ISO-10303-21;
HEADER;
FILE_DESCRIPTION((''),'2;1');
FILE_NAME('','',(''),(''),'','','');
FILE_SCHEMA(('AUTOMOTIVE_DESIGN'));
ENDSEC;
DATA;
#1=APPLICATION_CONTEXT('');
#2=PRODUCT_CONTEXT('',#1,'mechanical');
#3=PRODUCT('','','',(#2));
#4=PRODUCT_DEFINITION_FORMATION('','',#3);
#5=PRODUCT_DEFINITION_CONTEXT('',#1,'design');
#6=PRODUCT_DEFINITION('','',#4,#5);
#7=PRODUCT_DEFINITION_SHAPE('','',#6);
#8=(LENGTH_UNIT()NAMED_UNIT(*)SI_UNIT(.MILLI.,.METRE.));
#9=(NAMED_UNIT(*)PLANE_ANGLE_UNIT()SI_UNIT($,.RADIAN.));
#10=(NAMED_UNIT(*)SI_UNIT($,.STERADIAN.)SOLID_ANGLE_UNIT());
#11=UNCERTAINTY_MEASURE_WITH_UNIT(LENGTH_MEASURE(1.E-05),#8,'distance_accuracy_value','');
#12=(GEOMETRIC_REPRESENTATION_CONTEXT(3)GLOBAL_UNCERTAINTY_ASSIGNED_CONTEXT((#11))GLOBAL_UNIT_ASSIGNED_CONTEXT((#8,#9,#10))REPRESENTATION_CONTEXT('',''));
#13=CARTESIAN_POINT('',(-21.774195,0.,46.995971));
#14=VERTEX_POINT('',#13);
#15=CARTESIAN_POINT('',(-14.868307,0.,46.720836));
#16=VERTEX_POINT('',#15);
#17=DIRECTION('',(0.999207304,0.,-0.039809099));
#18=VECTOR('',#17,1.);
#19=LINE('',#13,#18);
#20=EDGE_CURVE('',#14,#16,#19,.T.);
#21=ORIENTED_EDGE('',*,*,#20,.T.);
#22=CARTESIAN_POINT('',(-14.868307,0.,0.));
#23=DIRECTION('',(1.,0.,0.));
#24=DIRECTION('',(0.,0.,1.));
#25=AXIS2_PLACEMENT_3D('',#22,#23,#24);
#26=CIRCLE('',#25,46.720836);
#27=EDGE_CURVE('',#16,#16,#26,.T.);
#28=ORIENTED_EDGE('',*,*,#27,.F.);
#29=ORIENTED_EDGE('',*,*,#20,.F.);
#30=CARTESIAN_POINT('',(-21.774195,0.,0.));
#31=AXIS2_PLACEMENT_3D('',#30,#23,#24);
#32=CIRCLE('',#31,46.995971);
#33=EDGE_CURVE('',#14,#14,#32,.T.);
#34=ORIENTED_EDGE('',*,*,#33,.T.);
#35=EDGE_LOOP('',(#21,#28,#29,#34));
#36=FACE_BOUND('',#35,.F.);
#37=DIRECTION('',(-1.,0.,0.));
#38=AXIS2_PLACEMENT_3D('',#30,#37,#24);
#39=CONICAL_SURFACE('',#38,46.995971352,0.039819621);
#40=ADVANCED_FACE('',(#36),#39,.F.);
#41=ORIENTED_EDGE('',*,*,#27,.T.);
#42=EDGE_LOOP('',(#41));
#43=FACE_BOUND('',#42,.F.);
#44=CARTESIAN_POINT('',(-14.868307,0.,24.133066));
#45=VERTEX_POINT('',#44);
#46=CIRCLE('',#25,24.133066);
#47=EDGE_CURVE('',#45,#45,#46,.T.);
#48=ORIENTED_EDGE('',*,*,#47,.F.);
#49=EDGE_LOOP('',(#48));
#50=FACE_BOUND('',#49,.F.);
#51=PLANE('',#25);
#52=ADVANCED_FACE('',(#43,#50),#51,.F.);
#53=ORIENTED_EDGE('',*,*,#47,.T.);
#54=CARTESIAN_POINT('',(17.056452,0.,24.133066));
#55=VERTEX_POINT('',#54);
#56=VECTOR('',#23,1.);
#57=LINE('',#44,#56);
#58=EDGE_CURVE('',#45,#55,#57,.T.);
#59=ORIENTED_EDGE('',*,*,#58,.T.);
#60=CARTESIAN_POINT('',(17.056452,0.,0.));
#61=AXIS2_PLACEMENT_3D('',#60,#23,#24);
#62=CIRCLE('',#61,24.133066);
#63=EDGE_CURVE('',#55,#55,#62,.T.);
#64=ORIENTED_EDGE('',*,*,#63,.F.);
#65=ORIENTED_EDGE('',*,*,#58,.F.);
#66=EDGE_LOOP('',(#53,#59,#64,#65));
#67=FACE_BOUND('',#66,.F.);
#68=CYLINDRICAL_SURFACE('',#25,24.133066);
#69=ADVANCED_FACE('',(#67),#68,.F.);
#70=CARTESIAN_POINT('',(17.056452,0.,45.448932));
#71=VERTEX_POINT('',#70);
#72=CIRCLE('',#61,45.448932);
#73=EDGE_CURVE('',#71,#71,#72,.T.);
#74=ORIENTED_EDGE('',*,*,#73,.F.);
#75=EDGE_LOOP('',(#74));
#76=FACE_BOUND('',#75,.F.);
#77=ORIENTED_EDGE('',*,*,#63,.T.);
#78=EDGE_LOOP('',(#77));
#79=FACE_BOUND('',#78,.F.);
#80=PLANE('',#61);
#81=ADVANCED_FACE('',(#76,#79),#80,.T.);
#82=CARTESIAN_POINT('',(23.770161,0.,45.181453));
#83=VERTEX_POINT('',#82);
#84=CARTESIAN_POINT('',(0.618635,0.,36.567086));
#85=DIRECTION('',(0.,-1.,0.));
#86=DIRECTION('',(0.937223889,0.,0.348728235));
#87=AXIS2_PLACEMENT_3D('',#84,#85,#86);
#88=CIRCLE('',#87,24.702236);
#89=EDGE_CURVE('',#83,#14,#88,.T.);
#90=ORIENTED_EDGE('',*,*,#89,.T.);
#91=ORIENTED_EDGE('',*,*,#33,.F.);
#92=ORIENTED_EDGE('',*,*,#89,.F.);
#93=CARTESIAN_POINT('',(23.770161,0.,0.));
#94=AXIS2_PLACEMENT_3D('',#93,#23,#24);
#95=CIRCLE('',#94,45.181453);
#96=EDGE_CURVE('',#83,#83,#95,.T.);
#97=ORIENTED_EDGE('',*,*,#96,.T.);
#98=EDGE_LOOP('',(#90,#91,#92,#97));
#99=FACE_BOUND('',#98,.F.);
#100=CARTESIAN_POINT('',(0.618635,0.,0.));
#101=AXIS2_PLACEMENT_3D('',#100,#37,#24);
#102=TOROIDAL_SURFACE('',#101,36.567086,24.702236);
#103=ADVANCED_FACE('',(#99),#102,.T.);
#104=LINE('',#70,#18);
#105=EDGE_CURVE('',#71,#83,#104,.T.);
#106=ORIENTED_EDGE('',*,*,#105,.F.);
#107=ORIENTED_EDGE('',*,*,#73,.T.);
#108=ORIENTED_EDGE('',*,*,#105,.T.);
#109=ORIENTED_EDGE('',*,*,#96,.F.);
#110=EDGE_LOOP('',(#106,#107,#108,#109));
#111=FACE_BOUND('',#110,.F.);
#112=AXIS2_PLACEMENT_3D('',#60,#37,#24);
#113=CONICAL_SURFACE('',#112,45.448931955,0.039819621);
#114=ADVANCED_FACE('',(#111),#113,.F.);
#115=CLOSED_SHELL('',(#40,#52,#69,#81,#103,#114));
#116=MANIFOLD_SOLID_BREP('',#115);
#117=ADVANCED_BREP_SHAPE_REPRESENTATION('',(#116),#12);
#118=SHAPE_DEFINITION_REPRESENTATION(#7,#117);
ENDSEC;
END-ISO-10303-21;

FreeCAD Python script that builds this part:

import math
import FreeCAD as App
import Part
import Sketcher

doc = App.newDocument("Part")
body = doc.addObject("PartDesign::Body", "Body")

sketch1 = doc.addObject("Sketcher::SketchObject", "Sketch")
body.addObject(sketch1)
sketch1.AttachmentSupport = (doc.XZ_Plane, [""])
sketch1.MapMode = "FlatFace"
sketch1.addGeometry(Part.LineSegment(App.Vector(17, 45, 0), App.Vector(24, 45, 0)), False)
sketch1.addGeometry(Part.ArcOfCircle(Part.Circle(App.Vector(1, 37, 0), App.Vector(0, 0, 1), 25), math.radians(20), math.radians(155)), False)
sketch1.addGeometry(Part.LineSegment(App.Vector(-22, 47, 0), App.Vector(-15, 47, 0)), False)
sketch1.addGeometry(Part.LineSegment(App.Vector(-15, 47, 0), App.Vector(-15, 24, 0)), False)
sketch1.addGeometry(Part.LineSegment(App.Vector(-15, 24, 0), App.Vector(17, 24, 0)), False)
sketch1.addGeometry(Part.LineSegment(App.Vector(17, 24, 0), App.Vector(17, 45, 0)), False)
sketch1.addConstraint(Sketcher.Constraint("Coincident", 0, 2, 1, 1))
sketch1.addConstraint(Sketcher.Constraint("Coincident", 1, 2, 2, 1))
sketch1.addConstraint(Sketcher.Constraint("Coincident", 2, 2, 3, 1))
sketch1.addConstraint(Sketcher.Constraint("Coincident", 3, 2, 4, 1))
sketch1.addConstraint(Sketcher.Constraint("Coincident", 4, 2, 5, 1))
sketch1.addConstraint(Sketcher.Constraint("Coincident", 5, 2, 0, 1))
sketch1.addConstraint(Sketcher.Constraint("Vertical", 3))
sketch1.addConstraint(Sketcher.Constraint("Horizontal", 4))
sketch1.addConstraint(Sketcher.Constraint("Vertical", 5))
sketch1.addConstraint(Sketcher.Constraint("Parallel", 0, 2))
sketch1.addConstraint(Sketcher.Constraint("Radius", 1, 24.702236))
sketch1.addConstraint(Sketcher.Constraint("DistanceX", 4, 1, 4, 2, 31.924759))
sketch1.addConstraint(Sketcher.Constraint("DistanceY", 3, 2, 3, 1, 22.58777))
sketch1.addConstraint(Sketcher.Constraint("DistanceY", 5, 1, 5, 2, 21.315866))
sketch1.addConstraint(Sketcher.Constraint("DistanceX", -1, 1, 0, 2, 23.770161))
sketch1.addConstraint(Sketcher.Constraint("DistanceY", -1, 1, 1, 2, 46.995971))
sketch1.addConstraint(Sketcher.Constraint("DistanceY", -1, 1, 5, 2, 45.448932))
sketch1.addConstraint(Sketcher.Constraint("DistanceX", 1, 2, 1, 3, 22.39283))
sketch1.addConstraint(Sketcher.Constraint("DistanceX", 1, 2, 2, 2, 6.905888))
revolution = doc.addObject("PartDesign::Revolution", "Revolution")
body.addObject(revolution)
revolution.Profile = sketch1
revolution.ReferenceAxis = (sketch1, ["H_Axis"])
revolution.Angle = 360

doc.recompute()
